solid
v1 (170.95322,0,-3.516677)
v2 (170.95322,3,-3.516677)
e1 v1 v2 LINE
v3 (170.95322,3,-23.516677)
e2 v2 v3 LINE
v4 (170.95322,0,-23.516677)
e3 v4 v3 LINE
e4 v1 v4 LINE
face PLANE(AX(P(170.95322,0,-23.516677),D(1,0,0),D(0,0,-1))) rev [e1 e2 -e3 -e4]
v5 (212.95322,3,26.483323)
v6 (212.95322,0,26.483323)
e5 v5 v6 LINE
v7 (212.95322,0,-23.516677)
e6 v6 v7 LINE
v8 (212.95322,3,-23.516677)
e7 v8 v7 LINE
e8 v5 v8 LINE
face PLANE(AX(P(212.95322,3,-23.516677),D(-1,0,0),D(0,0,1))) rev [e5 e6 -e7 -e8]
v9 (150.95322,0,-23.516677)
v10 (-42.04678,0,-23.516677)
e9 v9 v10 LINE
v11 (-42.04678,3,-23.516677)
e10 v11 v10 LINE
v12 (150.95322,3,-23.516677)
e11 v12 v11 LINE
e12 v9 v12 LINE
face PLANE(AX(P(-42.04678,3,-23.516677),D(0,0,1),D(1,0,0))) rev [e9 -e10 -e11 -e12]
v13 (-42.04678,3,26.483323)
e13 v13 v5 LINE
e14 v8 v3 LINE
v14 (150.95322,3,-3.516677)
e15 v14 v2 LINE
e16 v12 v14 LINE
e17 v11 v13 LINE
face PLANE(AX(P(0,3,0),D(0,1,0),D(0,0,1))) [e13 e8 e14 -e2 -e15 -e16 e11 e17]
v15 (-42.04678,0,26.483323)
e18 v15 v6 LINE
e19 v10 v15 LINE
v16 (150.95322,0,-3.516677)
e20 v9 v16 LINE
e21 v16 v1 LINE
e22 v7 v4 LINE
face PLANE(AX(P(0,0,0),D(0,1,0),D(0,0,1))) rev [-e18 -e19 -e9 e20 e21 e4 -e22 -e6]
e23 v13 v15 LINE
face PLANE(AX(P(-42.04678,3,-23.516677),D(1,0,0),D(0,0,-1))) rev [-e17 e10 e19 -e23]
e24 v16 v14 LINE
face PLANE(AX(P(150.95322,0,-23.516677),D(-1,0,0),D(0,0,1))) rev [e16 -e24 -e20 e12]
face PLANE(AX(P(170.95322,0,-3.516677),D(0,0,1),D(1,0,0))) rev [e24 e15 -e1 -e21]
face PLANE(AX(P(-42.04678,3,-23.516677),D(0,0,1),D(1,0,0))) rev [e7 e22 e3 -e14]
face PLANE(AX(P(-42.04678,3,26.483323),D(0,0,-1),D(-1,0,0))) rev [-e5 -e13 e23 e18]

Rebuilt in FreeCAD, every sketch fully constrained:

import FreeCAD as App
import Part
import Sketcher
Q = App.Units.Quantity


def add_polygon(sketch, points):
    """Adds a closed chain of lines whose ends are joined by coincident constraints."""
    first, n = sketch.GeometryCount, len(points)
    for a, b in zip(points, points[1:] + points[:1]):
        sketch.addGeometry(Part.LineSegment(App.Vector(*a, 0), App.Vector(*b, 0)), False)
    for i in range(n):
        sketch.addConstraint(Sketcher.Constraint("Coincident", first + i, 2, first + (i + 1) % n, 1))

doc = App.newDocument("Part")
body = doc.addObject("PartDesign::Body", "Body")

sketch1 = body.newObject("Sketcher::SketchObject", "Sketch")
sketch1.AttachmentSupport = (doc.getObject("XZ_Plane"), [""])
sketch1.MapMode = "FlatFace"
add_polygon(sketch1, [(-42, -24), (-42, 26), (213, 26), (213, -24)])
sketch1.addConstraint([
    Sketcher.Constraint("Vertical", 0),
    Sketcher.Constraint("Horizontal", 1),
    Sketcher.Constraint("Vertical", 2),
    Sketcher.Constraint("Horizontal", 3),
    Sketcher.Constraint("DistanceX", 1, 1, 1, 2, Q("255 mm")),
    Sketcher.Constraint("DistanceY", 0, 1, 0, 2, Q("50 mm")),
    Sketcher.Constraint("DistanceX", 0, 2, -1, 1, Q("42.04678 mm")),
    Sketcher.Constraint("DistanceY", -1, 1, 0, 2, Q("26.483323 mm")),
])
pad1 = body.newObject("PartDesign::Pad", "Pad")
pad1.Profile = sketch1
pad1.Length = 3
pad1.Reversed = True

sketch2 = body.newObject("Sketcher::SketchObject", "Sketch001")
sketch2.AttachmentSupport = (doc.getObject("XZ_Plane"), [""])
sketch2.MapMode = "FlatFace"
sketch2.AttachmentOffset = App.Placement(App.Vector(0, 0, -3), App.Rotation())
add_polygon(sketch2, [(151, -24), (151, -4), (171, -4), (171, -24)])
sketch2.addConstraint([
    Sketcher.Constraint("Vertical", 0),
    Sketcher.Constraint("Horizontal", 1),
    Sketcher.Constraint("Vertical", 2),
    Sketcher.Constraint("Horizontal", 3),
    Sketcher.Constraint("Equal", 3, 0),
    Sketcher.Constraint("DistanceX", 1, 1, 1, 2, Q("20 mm")),
    Sketcher.Constraint("DistanceX", -1, 1, 0, 2, Q("150.95322 mm")),
    Sketcher.Constraint("DistanceY", 0, 2, -1, 1, Q("3.516677 mm")),
])
pocket1 = body.newObject("PartDesign::Pocket", "Pocket")
pocket1.Profile = sketch2
pocket1.Length = 3
pocket1.Reversed = True

doc.recompute()
